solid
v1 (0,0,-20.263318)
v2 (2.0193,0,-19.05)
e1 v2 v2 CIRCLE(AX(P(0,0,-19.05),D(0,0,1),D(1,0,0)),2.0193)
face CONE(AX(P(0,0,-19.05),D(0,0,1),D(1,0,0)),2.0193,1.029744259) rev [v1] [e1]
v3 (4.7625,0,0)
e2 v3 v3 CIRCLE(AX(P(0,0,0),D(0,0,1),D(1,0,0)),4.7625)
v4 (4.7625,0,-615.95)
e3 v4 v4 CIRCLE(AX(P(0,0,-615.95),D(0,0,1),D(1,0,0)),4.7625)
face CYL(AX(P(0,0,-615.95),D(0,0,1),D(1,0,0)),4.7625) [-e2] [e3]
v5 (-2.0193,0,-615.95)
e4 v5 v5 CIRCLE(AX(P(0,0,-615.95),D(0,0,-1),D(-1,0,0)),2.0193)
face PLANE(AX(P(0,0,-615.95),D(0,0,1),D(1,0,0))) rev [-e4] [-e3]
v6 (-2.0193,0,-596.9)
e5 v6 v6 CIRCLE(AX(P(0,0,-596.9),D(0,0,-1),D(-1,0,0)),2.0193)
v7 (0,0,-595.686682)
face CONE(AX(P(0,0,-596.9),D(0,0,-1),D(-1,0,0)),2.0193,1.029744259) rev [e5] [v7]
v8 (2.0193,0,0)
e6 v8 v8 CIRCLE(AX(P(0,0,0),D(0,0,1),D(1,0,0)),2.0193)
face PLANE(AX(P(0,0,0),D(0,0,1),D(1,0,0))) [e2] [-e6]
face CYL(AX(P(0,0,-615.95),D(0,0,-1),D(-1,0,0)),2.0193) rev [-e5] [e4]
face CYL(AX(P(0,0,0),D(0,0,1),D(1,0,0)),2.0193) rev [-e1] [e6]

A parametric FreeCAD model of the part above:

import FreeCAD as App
import Part
import Sketcher

V = App.Vector
Q = App.Units.Quantity

doc = App.newDocument("Part")
params = doc.addObject("Spreadsheet::Sheet", "Params")
for row, (alias, value) in enumerate([
    ("sketch1_diameter", "0.375 in"),
    ("pad1_length", "24.25 in"),
    ("sketch2_diameter", "0.159 in"),
    ("hole_diameter", "0.159 in"),
    ("hole_depth", "0.75 in"),
    ("sketch3_diameter", "0.159 in"),
    ("hole2_diameter", "0.159 in"),
    ("hole2_depth", "0.75 in"),
], start=1):
    params.set(f"A{row}", alias)
    params.set(f"B{row}", "=" + value)
    params.setAlias(f"B{row}", alias)

body = doc.addObject("PartDesign::Body", "Body")

# Sketch on XY plane
sketch1 = doc.addObject("Sketcher::SketchObject", "Sketch")
body.addObject(sketch1)
sketch1.AttachmentSupport = (doc.XY_Plane, [""])
sketch1.MapMode = "FlatFace"
sketch1.addGeometry(Part.Circle(V(0, 0, 0), V(0, 0, 1), 4.8), False)
sketch1.addConstraint([
    Sketcher.Constraint("Coincident", 0, 3, -1, 1),
    Sketcher.Constraint("Diameter", 0, Q("0.375 in")),
])
sketch1.setExpression("Constraints[1]", "Params.sketch1_diameter")
pad1 = doc.addObject("PartDesign::Pad", "Pad")
body.addObject(pad1)
pad1.Profile = sketch1
pad1.setExpression("Length", "Params.pad1_length")
pad1.Reversed = True

# Sketch on XY plane
sketch2 = doc.addObject("Sketcher::SketchObject", "Sketch001")
body.addObject(sketch2)
sketch2.AttachmentSupport = (doc.XY_Plane, [""])
sketch2.MapMode = "FlatFace"
sketch2.AttachmentOffset = App.Placement(V(0, 0, -24.25 * 25.4), App.Rotation())
sketch2.addGeometry(Part.Circle(V(0, 0, 0), V(0, 0, 1), 2), False)
sketch2.addConstraint([
    Sketcher.Constraint("Coincident", 0, 3, -1, 1),
    Sketcher.Constraint("Diameter", 0, Q("0.159 in")),
])
sketch2.setExpression("Constraints[1]", "Params.sketch2_diameter")
doc.recompute()
hole = doc.addObject("PartDesign::Hole", "Hole")
body.addObject(hole)
hole.Profile = sketch2
hole.ThreadType = "None"
hole.setExpression("Diameter", "Params.hole_diameter")
hole.DepthType = "Dimension"
hole.setExpression("Depth", "Params.hole_depth")
hole.DrillPoint = "Angled"
hole.DrillPointAngle = 118
hole.Reversed = True

# Sketch on XY plane
sketch3 = doc.addObject("Sketcher::SketchObject", "Sketch002")
body.addObject(sketch3)
sketch3.AttachmentSupport = (doc.XY_Plane, [""])
sketch3.MapMode = "FlatFace"
sketch3.addGeometry(Part.Circle(V(0, 0, 0), V(0, 0, 1), 2), False)
sketch3.addConstraint([
    Sketcher.Constraint("Coincident", 0, 3, -1, 1),
    Sketcher.Constraint("Diameter", 0, Q("0.159 in")),
])
sketch3.setExpression("Constraints[1]", "Params.sketch3_diameter")
doc.recompute()
hole2 = doc.addObject("PartDesign::Hole", "Hole001")
body.addObject(hole2)
hole2.Profile = sketch3
hole2.ThreadType = "None"
hole2.setExpression("Diameter", "Params.hole2_diameter")
hole2.DepthType = "Dimension"
hole2.setExpression("Depth", "Params.hole2_depth")
hole2.DrillPoint = "Angled"
hole2.DrillPointAngle = 118

doc.recompute()
